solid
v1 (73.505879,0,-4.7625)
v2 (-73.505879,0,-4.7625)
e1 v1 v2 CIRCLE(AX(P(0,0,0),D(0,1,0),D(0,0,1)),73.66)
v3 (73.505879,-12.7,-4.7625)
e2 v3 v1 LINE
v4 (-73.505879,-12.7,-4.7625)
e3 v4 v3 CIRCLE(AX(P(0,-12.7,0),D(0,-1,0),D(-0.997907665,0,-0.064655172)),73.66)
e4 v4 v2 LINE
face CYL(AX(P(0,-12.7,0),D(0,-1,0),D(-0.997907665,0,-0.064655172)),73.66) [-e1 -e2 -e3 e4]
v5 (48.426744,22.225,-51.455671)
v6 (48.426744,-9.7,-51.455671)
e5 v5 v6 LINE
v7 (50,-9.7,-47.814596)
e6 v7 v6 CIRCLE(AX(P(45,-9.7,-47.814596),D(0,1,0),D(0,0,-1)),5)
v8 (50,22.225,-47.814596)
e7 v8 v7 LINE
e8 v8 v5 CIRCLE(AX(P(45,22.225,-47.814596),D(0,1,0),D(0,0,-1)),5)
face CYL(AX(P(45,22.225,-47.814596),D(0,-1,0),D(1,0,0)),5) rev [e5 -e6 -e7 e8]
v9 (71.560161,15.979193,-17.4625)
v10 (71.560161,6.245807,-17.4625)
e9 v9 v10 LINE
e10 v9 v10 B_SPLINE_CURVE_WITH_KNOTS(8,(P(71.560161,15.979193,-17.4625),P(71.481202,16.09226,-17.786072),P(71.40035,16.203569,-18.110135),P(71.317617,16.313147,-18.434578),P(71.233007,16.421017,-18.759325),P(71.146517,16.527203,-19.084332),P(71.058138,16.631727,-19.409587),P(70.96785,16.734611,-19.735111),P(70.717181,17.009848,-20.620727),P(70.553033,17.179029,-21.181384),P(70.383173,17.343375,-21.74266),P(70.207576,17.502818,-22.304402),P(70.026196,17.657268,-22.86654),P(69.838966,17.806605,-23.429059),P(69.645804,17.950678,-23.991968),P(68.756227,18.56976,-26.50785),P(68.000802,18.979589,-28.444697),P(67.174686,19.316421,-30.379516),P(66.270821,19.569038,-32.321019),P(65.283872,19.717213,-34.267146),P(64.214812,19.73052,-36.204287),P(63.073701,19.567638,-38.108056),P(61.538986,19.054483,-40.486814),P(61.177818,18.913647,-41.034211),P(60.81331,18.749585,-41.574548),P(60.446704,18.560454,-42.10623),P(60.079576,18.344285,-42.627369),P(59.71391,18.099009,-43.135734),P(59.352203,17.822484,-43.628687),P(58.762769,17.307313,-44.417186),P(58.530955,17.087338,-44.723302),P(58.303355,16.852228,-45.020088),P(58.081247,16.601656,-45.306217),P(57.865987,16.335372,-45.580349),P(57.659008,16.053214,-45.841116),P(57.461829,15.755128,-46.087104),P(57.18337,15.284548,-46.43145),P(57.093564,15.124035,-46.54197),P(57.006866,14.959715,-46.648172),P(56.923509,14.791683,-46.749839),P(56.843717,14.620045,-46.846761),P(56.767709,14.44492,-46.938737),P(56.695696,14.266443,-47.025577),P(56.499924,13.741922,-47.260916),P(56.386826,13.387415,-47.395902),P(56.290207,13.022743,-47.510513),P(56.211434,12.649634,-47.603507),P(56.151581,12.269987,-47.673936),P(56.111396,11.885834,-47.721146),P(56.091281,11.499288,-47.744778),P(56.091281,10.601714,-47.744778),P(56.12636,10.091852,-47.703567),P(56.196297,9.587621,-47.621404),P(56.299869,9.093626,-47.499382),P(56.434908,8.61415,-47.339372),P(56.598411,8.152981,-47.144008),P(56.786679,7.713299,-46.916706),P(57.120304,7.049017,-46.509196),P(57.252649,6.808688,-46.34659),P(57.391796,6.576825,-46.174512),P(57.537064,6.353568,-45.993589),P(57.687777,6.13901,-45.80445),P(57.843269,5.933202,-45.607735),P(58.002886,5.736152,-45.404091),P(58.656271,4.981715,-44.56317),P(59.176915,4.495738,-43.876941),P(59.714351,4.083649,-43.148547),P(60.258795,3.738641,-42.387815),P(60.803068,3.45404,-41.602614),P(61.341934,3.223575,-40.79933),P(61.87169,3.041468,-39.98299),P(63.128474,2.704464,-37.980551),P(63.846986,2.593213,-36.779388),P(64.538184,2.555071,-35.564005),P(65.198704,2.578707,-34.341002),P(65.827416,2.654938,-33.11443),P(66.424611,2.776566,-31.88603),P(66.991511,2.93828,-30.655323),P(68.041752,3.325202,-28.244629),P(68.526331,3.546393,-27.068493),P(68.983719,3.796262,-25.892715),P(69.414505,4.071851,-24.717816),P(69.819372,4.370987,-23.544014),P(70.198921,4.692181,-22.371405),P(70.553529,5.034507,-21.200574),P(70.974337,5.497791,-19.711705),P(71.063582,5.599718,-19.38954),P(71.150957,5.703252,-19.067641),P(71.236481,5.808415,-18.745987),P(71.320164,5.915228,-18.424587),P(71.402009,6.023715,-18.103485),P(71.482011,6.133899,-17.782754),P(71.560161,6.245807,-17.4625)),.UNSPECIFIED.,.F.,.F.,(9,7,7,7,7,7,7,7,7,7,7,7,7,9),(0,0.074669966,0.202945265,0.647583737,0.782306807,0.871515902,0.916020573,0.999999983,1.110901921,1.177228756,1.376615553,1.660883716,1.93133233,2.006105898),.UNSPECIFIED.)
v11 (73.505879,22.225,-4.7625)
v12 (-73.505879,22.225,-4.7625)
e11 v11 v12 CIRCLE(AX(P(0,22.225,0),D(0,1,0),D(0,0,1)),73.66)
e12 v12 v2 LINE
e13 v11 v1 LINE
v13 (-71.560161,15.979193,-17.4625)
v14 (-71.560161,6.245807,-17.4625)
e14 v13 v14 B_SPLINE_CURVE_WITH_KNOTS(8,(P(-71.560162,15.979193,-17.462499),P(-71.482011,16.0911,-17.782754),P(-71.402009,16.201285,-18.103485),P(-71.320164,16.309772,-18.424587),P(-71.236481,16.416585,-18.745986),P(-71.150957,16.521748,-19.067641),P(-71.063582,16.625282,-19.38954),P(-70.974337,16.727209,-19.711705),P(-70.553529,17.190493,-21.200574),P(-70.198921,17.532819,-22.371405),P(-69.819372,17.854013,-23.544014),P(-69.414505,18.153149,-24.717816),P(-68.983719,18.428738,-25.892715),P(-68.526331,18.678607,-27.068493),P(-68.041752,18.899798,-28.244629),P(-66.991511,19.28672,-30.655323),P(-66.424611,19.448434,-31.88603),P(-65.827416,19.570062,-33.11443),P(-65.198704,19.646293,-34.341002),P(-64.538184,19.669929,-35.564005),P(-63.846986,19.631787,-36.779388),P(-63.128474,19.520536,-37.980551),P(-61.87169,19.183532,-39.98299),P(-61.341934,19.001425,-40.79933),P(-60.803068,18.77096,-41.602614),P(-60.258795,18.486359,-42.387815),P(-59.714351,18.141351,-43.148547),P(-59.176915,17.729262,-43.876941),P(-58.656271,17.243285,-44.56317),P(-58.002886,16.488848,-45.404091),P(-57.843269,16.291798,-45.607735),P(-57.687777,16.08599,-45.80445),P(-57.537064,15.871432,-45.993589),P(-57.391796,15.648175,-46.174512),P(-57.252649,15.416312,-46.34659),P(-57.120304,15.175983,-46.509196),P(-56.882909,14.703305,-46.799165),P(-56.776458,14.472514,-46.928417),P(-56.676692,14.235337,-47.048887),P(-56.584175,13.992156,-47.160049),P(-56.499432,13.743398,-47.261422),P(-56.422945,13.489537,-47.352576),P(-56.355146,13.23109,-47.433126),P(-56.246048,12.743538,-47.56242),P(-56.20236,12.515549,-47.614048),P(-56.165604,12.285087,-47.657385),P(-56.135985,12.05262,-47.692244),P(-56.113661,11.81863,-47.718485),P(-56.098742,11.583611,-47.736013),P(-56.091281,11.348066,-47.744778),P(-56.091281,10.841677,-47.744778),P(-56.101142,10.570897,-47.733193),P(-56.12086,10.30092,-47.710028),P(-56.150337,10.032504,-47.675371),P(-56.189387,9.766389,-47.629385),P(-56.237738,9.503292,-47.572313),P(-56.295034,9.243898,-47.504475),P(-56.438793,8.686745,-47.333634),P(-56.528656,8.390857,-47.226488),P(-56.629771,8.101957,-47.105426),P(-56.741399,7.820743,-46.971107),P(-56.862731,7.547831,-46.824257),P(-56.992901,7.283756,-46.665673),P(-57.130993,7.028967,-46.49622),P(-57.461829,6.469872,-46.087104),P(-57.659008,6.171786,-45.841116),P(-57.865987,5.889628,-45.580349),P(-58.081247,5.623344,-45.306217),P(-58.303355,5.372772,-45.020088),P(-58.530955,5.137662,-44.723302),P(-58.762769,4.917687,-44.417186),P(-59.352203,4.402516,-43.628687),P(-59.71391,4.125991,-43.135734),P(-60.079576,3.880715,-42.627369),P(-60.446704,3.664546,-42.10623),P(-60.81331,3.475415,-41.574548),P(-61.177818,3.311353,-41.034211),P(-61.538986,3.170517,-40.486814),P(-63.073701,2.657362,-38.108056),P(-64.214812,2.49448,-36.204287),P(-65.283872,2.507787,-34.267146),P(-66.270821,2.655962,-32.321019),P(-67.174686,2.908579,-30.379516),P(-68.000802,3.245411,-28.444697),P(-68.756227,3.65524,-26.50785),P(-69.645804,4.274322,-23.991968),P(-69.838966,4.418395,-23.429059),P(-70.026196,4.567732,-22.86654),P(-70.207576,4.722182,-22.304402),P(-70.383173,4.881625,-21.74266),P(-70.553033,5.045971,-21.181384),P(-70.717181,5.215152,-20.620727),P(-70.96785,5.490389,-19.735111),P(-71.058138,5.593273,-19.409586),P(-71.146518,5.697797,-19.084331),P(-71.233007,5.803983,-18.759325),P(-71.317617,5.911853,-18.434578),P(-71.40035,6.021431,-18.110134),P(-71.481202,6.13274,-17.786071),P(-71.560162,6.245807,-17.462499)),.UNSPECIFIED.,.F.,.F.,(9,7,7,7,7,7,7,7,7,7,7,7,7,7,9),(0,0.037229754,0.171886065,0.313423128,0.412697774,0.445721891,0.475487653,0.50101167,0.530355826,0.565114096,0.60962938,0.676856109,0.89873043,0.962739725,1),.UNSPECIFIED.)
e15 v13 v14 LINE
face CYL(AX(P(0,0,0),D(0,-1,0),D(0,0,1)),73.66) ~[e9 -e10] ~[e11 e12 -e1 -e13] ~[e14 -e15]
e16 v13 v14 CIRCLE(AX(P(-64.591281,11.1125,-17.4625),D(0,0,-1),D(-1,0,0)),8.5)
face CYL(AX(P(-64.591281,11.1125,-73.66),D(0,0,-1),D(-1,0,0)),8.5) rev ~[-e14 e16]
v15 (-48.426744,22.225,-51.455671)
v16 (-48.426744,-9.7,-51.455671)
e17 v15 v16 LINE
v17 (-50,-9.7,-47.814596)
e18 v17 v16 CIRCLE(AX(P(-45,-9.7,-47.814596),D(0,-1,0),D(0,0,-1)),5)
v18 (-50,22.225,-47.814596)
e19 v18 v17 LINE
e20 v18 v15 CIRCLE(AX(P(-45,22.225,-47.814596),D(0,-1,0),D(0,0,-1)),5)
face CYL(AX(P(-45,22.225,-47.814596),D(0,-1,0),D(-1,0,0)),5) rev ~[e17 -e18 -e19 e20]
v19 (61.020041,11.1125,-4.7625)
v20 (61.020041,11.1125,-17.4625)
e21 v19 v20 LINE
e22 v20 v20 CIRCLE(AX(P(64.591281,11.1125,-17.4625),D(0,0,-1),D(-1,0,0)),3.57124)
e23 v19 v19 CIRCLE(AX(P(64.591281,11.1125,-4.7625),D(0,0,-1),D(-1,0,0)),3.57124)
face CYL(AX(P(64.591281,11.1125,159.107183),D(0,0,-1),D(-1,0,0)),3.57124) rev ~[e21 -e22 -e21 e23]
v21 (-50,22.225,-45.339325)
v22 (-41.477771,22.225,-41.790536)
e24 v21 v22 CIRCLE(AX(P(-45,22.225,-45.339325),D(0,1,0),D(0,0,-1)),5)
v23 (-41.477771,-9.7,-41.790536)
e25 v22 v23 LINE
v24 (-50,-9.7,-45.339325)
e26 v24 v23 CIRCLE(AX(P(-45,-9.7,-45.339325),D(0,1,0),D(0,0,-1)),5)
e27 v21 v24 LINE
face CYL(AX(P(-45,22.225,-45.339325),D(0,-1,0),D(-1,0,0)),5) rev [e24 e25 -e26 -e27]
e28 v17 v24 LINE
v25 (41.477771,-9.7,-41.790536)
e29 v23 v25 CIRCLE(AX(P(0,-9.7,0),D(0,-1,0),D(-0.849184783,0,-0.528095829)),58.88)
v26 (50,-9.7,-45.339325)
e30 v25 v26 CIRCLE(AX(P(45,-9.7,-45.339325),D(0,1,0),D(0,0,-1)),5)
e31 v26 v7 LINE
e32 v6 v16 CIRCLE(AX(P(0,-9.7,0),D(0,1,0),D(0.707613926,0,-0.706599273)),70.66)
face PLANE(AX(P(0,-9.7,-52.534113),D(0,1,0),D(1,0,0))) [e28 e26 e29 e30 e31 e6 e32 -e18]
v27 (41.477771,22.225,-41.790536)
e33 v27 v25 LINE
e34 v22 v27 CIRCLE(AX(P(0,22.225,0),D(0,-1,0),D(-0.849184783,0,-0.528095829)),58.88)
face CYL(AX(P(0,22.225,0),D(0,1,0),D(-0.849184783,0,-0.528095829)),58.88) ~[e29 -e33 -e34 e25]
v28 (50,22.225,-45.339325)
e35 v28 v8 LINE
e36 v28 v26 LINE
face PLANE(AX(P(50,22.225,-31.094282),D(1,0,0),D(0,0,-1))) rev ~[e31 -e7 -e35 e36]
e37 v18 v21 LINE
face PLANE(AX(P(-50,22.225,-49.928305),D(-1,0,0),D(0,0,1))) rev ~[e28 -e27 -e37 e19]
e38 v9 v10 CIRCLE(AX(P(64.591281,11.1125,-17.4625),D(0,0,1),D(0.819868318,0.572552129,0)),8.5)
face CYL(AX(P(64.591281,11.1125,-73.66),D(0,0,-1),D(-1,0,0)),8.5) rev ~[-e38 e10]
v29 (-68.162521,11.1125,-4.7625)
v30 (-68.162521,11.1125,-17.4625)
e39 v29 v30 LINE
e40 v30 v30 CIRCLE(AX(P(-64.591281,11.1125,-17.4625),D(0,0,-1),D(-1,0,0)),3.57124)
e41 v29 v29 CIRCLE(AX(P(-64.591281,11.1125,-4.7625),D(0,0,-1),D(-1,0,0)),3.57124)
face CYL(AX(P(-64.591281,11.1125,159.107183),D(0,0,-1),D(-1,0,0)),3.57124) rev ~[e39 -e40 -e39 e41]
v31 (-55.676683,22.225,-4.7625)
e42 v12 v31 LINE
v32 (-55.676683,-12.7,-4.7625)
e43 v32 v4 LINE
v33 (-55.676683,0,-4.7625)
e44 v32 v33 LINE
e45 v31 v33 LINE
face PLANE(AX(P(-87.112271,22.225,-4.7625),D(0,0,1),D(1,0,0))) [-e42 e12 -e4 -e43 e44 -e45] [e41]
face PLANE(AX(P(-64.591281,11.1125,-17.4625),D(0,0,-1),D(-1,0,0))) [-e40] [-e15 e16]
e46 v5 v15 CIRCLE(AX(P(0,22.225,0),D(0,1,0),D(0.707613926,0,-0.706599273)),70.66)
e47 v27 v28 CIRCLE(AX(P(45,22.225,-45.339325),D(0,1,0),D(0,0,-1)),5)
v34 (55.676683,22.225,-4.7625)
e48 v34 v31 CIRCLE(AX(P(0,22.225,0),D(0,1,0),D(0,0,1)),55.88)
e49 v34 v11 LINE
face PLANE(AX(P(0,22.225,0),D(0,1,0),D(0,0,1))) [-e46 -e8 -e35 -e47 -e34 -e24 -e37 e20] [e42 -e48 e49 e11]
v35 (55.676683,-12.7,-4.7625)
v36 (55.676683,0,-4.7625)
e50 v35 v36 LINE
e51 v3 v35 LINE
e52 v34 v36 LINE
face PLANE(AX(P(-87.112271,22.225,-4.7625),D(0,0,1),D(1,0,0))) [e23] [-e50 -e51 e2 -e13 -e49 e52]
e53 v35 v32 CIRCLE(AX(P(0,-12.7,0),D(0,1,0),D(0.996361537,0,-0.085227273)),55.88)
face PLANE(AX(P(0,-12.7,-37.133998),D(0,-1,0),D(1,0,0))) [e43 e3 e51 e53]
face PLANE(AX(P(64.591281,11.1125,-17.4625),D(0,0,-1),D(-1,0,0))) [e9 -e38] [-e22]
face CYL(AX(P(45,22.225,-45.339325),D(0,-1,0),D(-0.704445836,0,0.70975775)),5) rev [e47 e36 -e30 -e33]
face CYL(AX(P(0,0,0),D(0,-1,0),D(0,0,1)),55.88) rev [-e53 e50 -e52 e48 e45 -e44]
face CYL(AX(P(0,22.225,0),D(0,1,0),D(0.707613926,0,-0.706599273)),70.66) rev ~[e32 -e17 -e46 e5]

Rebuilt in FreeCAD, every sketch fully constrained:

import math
import FreeCAD as App
import Part
import Sketcher

V = App.Vector
Q = App.Units.Quantity


def edges_at(feature, points):
    """Names of the edges that pass closest to the given points."""
    edges = feature.Shape.Edges
    near = lambda p: min(range(len(edges)), key=lambda i: edges[i].distToShape(Part.Vertex(*p))[0])
    return sorted({f"Edge{near(p) + 1}" for p in points})

doc = App.newDocument("Part")
body = doc.addObject("PartDesign::Body", "Body")

sketch1 = body.newObject("Sketcher::SketchObject", "Sketch")
sketch1.AttachmentSupport = (doc.getObject("XZ_Plane"), [""])
sketch1.MapMode = "FlatFace"
sketch1.addGeometry(Part.Circle(V(0, 0, 0), V(0, 0, 1), 74), False)
sketch1.addGeometry(Part.Circle(V(0, 0, 0), V(0, 0, 1), 56), False)
sketch1.addConstraint(Sketcher.Constraint("Coincident", 0, 3, -1, 1))
sketch1.addConstraint(Sketcher.Constraint("Coincident", 1, 3, -1, 1))
sketch1.addConstraint(Sketcher.Constraint("Diameter", 0, Q("5.8 in")))
sketch1.addConstraint(Sketcher.Constraint("Diameter", 1, Q("4.4 in")))
pad1 = body.newObject("PartDesign::Pad", "Pad")
pad1.Profile = sketch1
pad1.Length = Q("0.875 in")
pad1.Reversed = True

sketch2 = body.newObject("Sketcher::SketchObject", "Sketch001")
sketch2.AttachmentSupport = (doc.getObject("XZ_Plane"), [""])
sketch2.MapMode = "FlatFace"
sketch2.AttachmentOffset = App.Placement(V(0, 0, -0.875 * 25.4), App.Rotation())
sketch2.addGeometry(Part.LineSegment(V(-87, -5, 0), V(-87, 90, 0)), False)
sketch2.addGeometry(Part.LineSegment(V(-87, 90, 0), V(87, 90, 0)), False)
sketch2.addGeometry(Part.LineSegment(V(87, 90, 0), V(87, -5, 0)), False)
sketch2.addGeometry(Part.LineSegment(V(87, -5, 0), V(-87, -5, 0)), False)
sketch2.addConstraint(Sketcher.Constraint("Coincident", 0, 2, 1, 1))
sketch2.addConstraint(Sketcher.Constraint("Coincident", 1, 2, 2, 1))
sketch2.addConstraint(Sketcher.Constraint("Coincident", 2, 2, 3, 1))
sketch2.addConstraint(Sketcher.Constraint("Coincident", 3, 2, 0, 1))
sketch2.addConstraint(Sketcher.Constraint("Vertical", 0))
sketch2.addConstraint(Sketcher.Constraint("Horizontal", 1))
sketch2.addConstraint(Sketcher.Constraint("Vertical", 2))
sketch2.addConstraint(Sketcher.Constraint("Horizontal", 3))
sketch2.addConstraint(Sketcher.Constraint("DistanceY", 2, 2, -1, 1, Q("0.1875 in")))
sketch2.addConstraint(Sketcher.Constraint("DistanceX", 1, 1, 1, 2, Q("174.179431 mm")))
sketch2.addConstraint(Sketcher.Constraint("DistanceY", 0, 1, 0, 2, Q("95.128766 mm")))
sketch2.addConstraint(Sketcher.Constraint("DistanceX", 0, 2, -1, 1, Q("87.112271 mm")))
pocket1 = body.newObject("PartDesign::Pocket", "Pocket")
pocket1.Profile = sketch2
pocket1.Length = Q("0.875 in")
pocket1.Reversed = True

sketch3 = body.newObject("Sketcher::SketchObject", "Sketch002")
sketch3.AttachmentSupport = (doc.getObject("XY_Plane"), [""])
sketch3.MapMode = "FlatFace"
sketch3.AttachmentOffset = App.Placement(V(0, 0, -0.1875 * 25.4), App.Rotation())
sketch3.addGeometry(Part.Circle(V(-64.6, 11.1, 0), V(0, 0, 1), 3.6), False)
sketch3.addGeometry(Part.Circle(V(64.6, 11.1, 0), V(0, 0, 1), 3.6), False)
sketch3.addConstraint(Sketcher.Constraint("Equal", 0, 1))
sketch3.addConstraint(Sketcher.Constraint("Symmetric", 0, 3, 1, 3, -2))
sketch3.addConstraint(Sketcher.Constraint("Diameter", 0, Q("0.2812 in")))
sketch3.addConstraint(Sketcher.Constraint("DistanceY", -1, 1, 0, 3, Q("0.4375 in")))
sketch3.addConstraint(Sketcher.Constraint("DistanceX", 0, 3, -1, 1, Q("64.591281 mm")))
doc.recompute()
hole = body.newObject("PartDesign::Hole", "Hole")
hole.Profile = sketch3
hole.ThreadType = "None"
hole.Diameter = Q("0.2812 in")
hole.DepthType = "ThroughAll"

sketch4 = body.newObject("Sketcher::SketchObject", "Sketch003")
sketch4.AttachmentSupport = (doc.getObject("XY_Plane"), [""])
sketch4.MapMode = "FlatFace"
sketch4.AttachmentOffset = App.Placement(V(0, 0, -2.9 * 25.4), App.Rotation())
sketch4.addGeometry(Part.Circle(V(65, 11, 0), V(0, 0, 1), 8), False)
sketch4.addGeometry(Part.Circle(V(-65, 11, 0), V(0, 0, 1), 8), False)
sketch4.addConstraint(Sketcher.Constraint("Equal", 0, 1))
sketch4.addConstraint(Sketcher.Constraint("Symmetric", 0, 3, 1, 3, -2))
sketch4.addConstraint(Sketcher.Constraint("Diameter", 0, Q("17 mm")))
sketch4.addConstraint(Sketcher.Constraint("DistanceY", -1, 1, 0, 3, Q("0.4375 in")))
sketch4.addConstraint(Sketcher.Constraint("DistanceX", -1, 1, 0, 3, Q("64.591281 mm")))
pocket2 = body.newObject("PartDesign::Pocket", "Pocket001")
pocket2.Profile = sketch4
pocket2.Length = Q("2.2125 in")
pocket2.Reversed = True

sketch5 = body.newObject("Sketcher::SketchObject", "Sketch004")
sketch5.AttachmentSupport = (doc.getObject("XZ_Plane"), [""])
sketch5.MapMode = "FlatFace"
sketch5.AttachmentOffset = App.Placement(V(0, 0, 0.5 * 25.4), App.Rotation())
sketch5.addGeometry(Part.LineSegment(V(74, -5, 0), V(56, -5, 0)), False)
sketch5.addGeometry(Part.ArcOfCircle(Part.Circle(V(0, 0, 0), V(0, 0, 1), 56), math.radians(-175), math.radians(-5)), False)
sketch5.addGeometry(Part.LineSegment(V(-56, -5, 0), V(-74, -5, 0)), False)
sketch5.addGeometry(Part.ArcOfCircle(Part.Circle(V(0, 0, 0), V(0, 0, 1), 74), math.radians(-176), math.radians(-4)), False)
sketch5.addConstraint(Sketcher.Constraint("Coincident", 0, 2, 1, 2))
sketch5.addConstraint(Sketcher.Constraint("Coincident", 1, 1, 2, 1))
sketch5.addConstraint(Sketcher.Constraint("Coincident", 2, 2, 3, 1))
sketch5.addConstraint(Sketcher.Constraint("Coincident", 3, 2, 0, 1))
sketch5.addConstraint(Sketcher.Constraint("Horizontal", 0))
sketch5.addConstraint(Sketcher.Constraint("Horizontal", 2))
sketch5.addConstraint(Sketcher.Constraint("Coincident", 1, 3, -1, 1))
sketch5.addConstraint(Sketcher.Constraint("Coincident", 3, 3, -1, 1))
sketch5.addConstraint(Sketcher.Constraint("Horizontal", 0, 2, 1, 1))
sketch5.addConstraint(Sketcher.Constraint("Radius", 1, Q("2.2 in")))
sketch5.addConstraint(Sketcher.Constraint("Radius", 3, Q("2.9 in")))
sketch5.addConstraint(Sketcher.Constraint("DistanceY", 0, 2, -1, 1, Q("0.1875 in")))
pad2 = body.newObject("PartDesign::Pad", "Pad001")
pad2.Profile = sketch5
pad2.Length = Q("0.5 in")
pad2.Reversed = True

sketch6 = body.newObject("Sketcher::SketchObject", "Sketch005")
sketch6.AttachmentSupport = (doc.getObject("XZ_Plane"), [""])
sketch6.MapMode = "FlatFace"
sketch6.AttachmentOffset = App.Placement(V(0, 0, -0.875 * 25.4), App.Rotation())
sketch6.addGeometry(Part.LineSegment(V(-50, -50, 0), V(-50, -31, 0)), False)
sketch6.addGeometry(Part.ArcOfCircle(Part.Circle(V(0, 0, 0), V(0, 0, 1), 59), math.radians(-148), math.radians(-32)), False)
sketch6.addGeometry(Part.LineSegment(V(50, -31, 0), V(50, -50, 0)), False)
sketch6.addGeometry(Part.ArcOfCircle(Part.Circle(V(0, 0, 0), V(0, 0, 1), 71), math.radians(-135), math.radians(-45)), False)
sketch6.addConstraint(Sketcher.Constraint("Coincident", 0, 2, 1, 1))
sketch6.addConstraint(Sketcher.Constraint("Coincident", 1, 2, 2, 1))
sketch6.addConstraint(Sketcher.Constraint("Coincident", 2, 2, 3, 2))
sketch6.addConstraint(Sketcher.Constraint("Coincident", 3, 1, 0, 1))
sketch6.addConstraint(Sketcher.Constraint("Vertical", 0))
sketch6.addConstraint(Sketcher.Constraint("Vertical", 2))
sketch6.addConstraint(Sketcher.Constraint("Coincident", 1, 3, -1, 1))
sketch6.addConstraint(Sketcher.Constraint("Coincident", 3, 3, -1, 1))
sketch6.addConstraint(Sketcher.Constraint("Horizontal", 0, 2, 1, 2))
sketch6.addConstraint(Sketcher.Constraint("Radius", 1, Q("58.88 mm")))
sketch6.addConstraint(Sketcher.Constraint("Radius", 3, Q("70.66 mm")))
sketch6.addConstraint(Sketcher.Constraint("DistanceX", 0, 2, -1, 1, Q("50 mm")))
pocket3 = body.newObject("PartDesign::Pocket", "Pocket002")
pocket3.Profile = sketch6
pocket3.Length = 31.925
pocket3.Reversed = True
doc.recompute()

fillet = body.newObject("PartDesign::Fillet", "Fillet")
fillet.Base = (pocket3, edges_at(pocket3, [
    (-50, 6.263, -31.094),
    (50, 6.263, -31.094),
    (50, 6.263, -49.928),
    (-50, 6.263, -49.928),
]))
fillet.Radius = 5

doc.recompute()
